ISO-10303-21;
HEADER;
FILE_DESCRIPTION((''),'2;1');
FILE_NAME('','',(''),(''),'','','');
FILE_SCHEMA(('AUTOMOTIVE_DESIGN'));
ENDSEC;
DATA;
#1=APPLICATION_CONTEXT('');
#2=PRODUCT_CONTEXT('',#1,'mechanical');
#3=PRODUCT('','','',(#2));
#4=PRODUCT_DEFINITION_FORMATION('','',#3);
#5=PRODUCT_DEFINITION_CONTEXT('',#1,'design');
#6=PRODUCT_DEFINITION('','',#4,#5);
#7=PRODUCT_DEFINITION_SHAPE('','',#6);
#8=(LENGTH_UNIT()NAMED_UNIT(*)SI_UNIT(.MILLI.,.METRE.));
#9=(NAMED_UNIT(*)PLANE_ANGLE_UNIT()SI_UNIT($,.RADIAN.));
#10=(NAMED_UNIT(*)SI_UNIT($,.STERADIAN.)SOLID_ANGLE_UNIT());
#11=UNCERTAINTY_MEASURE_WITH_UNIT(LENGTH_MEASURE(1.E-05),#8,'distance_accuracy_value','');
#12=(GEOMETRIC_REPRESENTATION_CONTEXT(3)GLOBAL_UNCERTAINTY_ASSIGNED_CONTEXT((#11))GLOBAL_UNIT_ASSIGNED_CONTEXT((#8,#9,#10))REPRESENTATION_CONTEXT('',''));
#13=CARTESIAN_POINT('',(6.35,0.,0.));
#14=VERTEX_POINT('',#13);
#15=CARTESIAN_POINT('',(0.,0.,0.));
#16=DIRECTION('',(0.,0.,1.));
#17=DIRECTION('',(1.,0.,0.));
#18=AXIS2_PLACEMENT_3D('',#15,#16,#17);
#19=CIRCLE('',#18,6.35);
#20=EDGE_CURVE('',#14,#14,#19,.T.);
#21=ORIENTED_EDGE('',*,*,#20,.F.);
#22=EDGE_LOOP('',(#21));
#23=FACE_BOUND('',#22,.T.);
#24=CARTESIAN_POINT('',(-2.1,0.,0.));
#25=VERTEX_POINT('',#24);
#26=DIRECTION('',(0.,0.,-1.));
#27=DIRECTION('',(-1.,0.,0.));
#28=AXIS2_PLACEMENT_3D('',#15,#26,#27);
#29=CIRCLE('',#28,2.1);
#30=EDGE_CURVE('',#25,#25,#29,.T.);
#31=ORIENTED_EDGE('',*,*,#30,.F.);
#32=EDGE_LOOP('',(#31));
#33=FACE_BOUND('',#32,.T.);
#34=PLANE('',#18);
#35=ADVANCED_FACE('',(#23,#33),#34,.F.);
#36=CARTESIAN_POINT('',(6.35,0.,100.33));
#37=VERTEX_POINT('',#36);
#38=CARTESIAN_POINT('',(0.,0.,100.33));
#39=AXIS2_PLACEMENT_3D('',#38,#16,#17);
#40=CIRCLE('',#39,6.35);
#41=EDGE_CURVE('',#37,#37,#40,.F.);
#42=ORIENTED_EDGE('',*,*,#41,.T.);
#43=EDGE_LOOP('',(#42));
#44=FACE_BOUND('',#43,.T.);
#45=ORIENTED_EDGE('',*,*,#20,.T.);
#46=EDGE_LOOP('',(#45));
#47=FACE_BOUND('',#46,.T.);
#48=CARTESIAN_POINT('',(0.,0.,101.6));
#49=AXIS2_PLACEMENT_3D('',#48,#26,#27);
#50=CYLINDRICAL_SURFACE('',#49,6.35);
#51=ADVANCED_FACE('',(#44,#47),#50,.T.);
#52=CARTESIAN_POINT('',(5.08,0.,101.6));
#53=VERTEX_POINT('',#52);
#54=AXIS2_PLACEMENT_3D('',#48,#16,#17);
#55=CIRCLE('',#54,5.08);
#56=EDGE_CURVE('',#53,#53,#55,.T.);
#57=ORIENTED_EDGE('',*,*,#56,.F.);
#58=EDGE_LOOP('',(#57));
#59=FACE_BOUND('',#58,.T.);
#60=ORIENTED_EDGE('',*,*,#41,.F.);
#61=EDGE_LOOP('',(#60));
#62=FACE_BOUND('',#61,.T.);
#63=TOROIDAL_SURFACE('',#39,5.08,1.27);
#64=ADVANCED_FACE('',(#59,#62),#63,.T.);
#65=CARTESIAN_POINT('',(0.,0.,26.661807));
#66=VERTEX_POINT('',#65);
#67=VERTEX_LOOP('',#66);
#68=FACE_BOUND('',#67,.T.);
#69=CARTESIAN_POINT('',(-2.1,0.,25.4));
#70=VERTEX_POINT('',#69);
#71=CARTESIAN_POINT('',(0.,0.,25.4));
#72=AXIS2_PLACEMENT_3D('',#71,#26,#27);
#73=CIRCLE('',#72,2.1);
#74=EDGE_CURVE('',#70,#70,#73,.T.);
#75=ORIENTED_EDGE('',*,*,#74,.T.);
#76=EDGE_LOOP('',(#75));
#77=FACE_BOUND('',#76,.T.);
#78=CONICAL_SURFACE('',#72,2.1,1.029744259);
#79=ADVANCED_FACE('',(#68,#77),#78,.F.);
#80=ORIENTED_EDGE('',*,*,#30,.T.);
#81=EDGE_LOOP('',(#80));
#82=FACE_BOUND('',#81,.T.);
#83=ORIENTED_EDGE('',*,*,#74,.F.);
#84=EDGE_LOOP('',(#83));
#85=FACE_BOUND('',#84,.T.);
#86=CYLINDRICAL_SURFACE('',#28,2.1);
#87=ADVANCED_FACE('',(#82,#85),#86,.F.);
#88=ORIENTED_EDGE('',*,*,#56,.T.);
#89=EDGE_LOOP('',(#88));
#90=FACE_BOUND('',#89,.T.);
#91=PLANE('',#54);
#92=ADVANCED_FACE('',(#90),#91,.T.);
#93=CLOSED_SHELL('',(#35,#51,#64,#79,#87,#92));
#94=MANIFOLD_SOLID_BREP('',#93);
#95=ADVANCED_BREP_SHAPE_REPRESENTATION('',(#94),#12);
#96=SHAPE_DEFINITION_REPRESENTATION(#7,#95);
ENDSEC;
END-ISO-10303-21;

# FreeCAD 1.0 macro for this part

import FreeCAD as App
import Part
import Sketcher

V = App.Vector
Q = App.Units.Quantity


def edges_at(feature, points):
    """Names of the edges that pass closest to the given points."""
    edges = feature.Shape.Edges
    near = lambda p: min(range(len(edges)), key=lambda i: edges[i].distToShape(Part.Vertex(*p))[0])
    return sorted({f"Edge{near(p) + 1}" for p in points})

doc = App.newDocument("Part")
body = doc.addObject("PartDesign::Body", "Body")

sketch1 = doc.addObject("Sketcher::SketchObject", "Sketch")
body.addObject(sketch1)
sketch1.AttachmentSupport = (doc.XY_Plane, [""])
sketch1.MapMode = "FlatFace"
sketch1.addGeometry(Part.Circle(V(0, 0, 0), V(0, 0, 1), 6.35), False)
sketch1.addConstraint(Sketcher.Constraint("Coincident", 0, 3, -1, 1))
sketch1.addConstraint(Sketcher.Constraint("Diameter", 0, Q("0.5 in")))
pad1 = doc.addObject("PartDesign::Pad", "Pad")
body.addObject(pad1)
pad1.Profile = sketch1
pad1.Length = Q("4 in")

sketch2 = doc.addObject("Sketcher::SketchObject", "Sketch001")
body.addObject(sketch2)
sketch2.AttachmentSupport = (doc.XY_Plane, [""])
sketch2.MapMode = "FlatFace"
sketch2.addGeometry(Part.Circle(V(0, 0, 0), V(0, 0, 1), 2.1), False)
sketch2.addConstraint(Sketcher.Constraint("Coincident", 0, 3, -1, 1))
sketch2.addConstraint(Sketcher.Constraint("Diameter", 0, Q("4.2 mm")))
doc.recompute()
hole = doc.addObject("PartDesign::Hole", "Hole")
body.addObject(hole)
hole.Profile = sketch2
hole.ThreadType = "None"
hole.Diameter = 4.2
hole.DepthType = "Dimension"
hole.Depth = Q("1 in")
hole.DrillPoint = "Angled"
hole.DrillPointAngle = 118
hole.Reversed = True
doc.recompute()

fillet = doc.addObject("PartDesign::Fillet", "Fillet")
body.addObject(fillet)
fillet.Base = (hole, edges_at(hole, [(-6.35, 0, 101.6)]))
fillet.Radius = Q("0.05 in")

doc.recompute()
